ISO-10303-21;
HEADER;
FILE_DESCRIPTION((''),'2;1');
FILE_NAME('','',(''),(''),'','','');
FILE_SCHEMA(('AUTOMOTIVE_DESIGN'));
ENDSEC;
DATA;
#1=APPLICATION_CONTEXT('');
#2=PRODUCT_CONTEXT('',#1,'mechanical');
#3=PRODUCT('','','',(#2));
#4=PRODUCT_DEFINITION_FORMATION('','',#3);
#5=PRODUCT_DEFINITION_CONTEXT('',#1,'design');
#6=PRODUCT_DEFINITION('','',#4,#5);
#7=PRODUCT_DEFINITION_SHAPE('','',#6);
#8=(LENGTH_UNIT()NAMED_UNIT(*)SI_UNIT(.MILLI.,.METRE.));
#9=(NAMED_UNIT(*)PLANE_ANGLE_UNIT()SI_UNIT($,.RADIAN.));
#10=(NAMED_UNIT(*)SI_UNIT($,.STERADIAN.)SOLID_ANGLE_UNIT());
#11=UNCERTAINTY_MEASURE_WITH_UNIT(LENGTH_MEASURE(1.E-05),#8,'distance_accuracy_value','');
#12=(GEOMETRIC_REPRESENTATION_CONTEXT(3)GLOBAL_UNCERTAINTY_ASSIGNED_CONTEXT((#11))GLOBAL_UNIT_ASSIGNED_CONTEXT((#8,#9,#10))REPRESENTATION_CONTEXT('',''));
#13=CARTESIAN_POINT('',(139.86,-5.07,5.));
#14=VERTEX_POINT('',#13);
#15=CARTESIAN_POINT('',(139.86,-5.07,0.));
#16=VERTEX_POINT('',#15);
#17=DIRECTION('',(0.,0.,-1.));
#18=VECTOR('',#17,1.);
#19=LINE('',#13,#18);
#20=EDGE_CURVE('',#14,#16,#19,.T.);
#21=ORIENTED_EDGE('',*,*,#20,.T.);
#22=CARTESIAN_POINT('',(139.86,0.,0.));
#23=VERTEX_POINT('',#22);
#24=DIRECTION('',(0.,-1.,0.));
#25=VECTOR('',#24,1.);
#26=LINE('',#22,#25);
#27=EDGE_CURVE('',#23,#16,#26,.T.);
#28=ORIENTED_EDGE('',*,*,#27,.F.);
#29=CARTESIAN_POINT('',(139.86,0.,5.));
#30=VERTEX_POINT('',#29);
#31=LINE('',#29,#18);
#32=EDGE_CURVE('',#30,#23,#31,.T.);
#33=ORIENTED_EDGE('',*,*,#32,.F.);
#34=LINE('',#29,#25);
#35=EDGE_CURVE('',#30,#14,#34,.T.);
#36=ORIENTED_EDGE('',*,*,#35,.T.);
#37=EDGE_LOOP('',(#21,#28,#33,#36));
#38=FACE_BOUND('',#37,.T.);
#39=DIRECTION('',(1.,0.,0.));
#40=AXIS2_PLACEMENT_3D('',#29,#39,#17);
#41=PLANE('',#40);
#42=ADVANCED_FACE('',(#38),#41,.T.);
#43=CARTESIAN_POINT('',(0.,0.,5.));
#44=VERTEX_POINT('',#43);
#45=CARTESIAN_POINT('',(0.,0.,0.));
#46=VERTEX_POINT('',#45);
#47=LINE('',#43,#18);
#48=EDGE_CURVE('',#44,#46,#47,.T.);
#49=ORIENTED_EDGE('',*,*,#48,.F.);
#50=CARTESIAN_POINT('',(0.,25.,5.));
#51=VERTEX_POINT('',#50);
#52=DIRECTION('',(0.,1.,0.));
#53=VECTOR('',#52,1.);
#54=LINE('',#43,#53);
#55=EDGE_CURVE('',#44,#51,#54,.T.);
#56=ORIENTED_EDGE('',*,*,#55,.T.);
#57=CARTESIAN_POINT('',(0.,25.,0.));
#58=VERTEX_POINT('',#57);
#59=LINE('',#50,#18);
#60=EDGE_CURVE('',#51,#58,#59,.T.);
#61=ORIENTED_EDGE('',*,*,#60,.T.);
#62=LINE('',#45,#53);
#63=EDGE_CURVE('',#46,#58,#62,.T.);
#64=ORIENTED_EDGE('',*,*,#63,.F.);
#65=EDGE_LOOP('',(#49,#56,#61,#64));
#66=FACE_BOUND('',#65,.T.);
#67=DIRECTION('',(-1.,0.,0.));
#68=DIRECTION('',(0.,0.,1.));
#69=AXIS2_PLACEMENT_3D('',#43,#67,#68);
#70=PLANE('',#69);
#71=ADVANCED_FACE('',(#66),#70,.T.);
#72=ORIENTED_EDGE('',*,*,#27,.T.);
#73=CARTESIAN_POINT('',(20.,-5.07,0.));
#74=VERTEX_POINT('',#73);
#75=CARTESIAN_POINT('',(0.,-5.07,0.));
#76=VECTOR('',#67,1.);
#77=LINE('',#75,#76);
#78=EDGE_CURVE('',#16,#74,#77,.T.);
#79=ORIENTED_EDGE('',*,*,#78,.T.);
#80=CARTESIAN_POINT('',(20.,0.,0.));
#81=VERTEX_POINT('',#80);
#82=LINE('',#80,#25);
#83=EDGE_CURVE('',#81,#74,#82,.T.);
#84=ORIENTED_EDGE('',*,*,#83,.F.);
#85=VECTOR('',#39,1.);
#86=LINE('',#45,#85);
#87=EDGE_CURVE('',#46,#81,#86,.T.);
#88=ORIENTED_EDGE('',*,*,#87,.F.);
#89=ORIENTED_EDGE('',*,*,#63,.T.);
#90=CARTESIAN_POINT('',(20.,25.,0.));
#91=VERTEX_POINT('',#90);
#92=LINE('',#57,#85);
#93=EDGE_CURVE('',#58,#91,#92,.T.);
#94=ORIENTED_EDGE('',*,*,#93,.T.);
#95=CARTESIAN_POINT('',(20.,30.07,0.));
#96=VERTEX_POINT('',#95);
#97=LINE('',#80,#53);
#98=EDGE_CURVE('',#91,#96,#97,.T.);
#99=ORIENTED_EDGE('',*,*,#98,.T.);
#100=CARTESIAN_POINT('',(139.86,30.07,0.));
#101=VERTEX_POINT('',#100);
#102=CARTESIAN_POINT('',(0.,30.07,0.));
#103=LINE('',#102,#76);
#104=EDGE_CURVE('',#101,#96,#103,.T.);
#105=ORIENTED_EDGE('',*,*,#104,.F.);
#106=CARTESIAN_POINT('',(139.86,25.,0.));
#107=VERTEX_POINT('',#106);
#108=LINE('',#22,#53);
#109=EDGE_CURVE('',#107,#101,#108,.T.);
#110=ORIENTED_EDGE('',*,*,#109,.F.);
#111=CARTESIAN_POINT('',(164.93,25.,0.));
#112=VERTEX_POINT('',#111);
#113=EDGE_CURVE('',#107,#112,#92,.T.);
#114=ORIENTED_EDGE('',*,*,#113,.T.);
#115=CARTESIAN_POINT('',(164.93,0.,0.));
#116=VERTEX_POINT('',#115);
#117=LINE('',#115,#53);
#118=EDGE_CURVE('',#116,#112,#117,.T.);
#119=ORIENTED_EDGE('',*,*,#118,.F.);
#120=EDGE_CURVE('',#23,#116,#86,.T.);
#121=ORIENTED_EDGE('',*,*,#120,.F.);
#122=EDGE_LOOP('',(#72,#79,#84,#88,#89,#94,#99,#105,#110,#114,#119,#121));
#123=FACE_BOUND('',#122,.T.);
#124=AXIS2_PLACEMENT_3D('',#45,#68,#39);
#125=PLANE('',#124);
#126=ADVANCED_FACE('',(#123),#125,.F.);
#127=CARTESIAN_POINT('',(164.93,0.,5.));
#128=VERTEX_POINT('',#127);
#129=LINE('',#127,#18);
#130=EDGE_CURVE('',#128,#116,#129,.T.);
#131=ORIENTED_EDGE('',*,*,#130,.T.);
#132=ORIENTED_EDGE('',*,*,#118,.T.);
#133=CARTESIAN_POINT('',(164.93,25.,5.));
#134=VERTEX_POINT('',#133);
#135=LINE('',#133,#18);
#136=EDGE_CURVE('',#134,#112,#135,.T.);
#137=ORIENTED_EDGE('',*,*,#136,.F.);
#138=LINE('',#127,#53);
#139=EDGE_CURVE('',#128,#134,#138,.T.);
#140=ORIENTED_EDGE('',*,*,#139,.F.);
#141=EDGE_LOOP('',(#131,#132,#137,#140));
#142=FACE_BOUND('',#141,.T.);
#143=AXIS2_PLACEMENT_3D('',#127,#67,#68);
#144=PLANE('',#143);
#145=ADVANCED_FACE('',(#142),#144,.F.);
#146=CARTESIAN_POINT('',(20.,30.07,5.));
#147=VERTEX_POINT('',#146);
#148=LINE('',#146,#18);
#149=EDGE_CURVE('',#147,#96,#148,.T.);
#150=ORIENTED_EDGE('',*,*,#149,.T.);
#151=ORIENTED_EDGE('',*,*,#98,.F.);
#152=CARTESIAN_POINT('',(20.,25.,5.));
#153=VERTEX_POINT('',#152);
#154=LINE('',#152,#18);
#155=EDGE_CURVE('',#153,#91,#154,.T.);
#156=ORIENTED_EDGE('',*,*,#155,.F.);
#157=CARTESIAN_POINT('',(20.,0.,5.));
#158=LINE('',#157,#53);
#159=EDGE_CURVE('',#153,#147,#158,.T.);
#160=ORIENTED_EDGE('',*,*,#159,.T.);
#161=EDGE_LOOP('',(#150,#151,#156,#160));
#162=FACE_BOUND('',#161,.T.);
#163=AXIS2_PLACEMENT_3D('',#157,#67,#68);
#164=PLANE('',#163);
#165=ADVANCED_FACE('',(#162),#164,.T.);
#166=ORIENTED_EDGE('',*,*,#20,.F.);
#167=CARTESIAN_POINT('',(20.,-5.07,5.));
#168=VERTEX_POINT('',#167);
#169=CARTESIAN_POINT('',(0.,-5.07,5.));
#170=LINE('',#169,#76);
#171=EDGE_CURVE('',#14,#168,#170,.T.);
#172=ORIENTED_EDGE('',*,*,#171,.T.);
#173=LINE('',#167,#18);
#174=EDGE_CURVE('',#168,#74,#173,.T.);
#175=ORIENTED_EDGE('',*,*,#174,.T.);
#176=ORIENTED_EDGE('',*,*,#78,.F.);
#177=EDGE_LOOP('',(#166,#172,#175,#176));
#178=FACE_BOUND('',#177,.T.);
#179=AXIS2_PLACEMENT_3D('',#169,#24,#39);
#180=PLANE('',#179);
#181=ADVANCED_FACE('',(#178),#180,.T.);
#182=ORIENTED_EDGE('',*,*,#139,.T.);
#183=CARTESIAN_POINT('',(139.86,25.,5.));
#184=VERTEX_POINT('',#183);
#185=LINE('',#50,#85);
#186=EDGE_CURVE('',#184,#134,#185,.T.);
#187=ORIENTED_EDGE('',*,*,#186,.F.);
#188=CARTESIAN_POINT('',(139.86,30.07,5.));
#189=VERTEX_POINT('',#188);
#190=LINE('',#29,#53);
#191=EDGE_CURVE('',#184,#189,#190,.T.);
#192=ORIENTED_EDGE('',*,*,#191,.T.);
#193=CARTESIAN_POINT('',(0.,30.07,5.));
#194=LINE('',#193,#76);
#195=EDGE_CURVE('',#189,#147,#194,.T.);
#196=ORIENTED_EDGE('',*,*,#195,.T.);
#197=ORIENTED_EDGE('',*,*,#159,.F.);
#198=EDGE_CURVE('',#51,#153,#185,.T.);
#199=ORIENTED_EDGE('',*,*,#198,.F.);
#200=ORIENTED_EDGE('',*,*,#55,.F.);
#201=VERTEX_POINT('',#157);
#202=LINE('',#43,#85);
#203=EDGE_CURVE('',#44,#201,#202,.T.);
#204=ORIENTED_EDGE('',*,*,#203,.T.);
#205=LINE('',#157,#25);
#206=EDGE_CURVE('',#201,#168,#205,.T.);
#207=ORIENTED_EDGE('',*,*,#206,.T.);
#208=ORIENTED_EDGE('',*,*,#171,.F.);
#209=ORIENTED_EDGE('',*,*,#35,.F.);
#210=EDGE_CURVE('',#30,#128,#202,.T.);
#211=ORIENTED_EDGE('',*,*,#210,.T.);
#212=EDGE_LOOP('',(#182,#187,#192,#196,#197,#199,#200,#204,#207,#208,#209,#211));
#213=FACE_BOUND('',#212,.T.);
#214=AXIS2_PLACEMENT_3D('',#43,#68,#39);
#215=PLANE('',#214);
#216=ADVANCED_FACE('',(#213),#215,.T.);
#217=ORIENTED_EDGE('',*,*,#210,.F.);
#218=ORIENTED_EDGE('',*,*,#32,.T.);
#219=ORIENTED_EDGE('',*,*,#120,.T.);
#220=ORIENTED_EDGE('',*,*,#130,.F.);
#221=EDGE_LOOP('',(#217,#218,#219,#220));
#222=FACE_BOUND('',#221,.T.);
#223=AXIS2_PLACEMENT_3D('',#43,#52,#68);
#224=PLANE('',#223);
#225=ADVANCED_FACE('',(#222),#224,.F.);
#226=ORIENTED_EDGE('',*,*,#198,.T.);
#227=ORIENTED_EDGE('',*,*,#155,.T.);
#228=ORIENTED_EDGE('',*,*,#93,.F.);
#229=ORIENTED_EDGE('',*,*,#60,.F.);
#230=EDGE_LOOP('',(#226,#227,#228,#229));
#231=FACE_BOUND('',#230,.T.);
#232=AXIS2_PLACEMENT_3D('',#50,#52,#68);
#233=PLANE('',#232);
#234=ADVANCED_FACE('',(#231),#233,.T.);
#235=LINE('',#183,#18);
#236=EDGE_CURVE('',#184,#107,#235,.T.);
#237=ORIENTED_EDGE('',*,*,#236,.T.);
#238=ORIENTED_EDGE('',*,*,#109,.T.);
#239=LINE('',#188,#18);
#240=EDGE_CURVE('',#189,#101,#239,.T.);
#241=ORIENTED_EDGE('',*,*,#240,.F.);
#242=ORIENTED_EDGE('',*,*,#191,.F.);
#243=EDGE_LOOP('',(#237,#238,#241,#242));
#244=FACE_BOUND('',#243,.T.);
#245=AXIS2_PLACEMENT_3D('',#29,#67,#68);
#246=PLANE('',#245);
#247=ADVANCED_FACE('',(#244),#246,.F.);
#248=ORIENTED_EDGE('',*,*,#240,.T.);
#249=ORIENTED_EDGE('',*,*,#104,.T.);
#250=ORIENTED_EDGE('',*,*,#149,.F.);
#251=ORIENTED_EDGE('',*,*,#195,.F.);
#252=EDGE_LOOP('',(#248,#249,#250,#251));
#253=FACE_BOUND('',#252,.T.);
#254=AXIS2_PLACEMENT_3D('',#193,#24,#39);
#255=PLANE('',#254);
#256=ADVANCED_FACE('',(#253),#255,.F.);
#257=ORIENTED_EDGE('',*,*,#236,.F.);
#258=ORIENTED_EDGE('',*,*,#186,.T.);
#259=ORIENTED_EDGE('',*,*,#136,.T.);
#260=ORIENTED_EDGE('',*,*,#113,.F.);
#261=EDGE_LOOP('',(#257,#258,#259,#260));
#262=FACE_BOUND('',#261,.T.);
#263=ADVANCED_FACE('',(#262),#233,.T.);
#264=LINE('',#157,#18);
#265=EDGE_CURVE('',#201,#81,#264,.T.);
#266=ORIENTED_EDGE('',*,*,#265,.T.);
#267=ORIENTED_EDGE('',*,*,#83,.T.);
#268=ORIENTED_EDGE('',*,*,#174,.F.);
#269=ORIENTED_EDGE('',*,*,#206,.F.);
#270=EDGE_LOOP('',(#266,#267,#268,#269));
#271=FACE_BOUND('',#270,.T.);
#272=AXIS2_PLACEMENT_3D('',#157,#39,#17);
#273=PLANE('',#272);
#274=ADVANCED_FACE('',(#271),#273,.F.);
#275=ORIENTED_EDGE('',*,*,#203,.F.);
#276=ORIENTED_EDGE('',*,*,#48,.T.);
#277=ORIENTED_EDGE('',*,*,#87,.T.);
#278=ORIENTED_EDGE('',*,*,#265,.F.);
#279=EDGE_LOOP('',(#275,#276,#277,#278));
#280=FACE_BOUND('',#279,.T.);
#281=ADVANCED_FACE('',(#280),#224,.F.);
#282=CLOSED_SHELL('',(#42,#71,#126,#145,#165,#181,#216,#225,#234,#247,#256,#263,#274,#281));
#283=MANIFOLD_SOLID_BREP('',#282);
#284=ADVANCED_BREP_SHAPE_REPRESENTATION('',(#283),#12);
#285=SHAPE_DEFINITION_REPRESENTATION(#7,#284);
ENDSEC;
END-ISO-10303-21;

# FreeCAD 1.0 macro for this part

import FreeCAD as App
import Part
import Sketcher

V = App.Vector
Q = App.Units.Quantity

doc = App.newDocument("Part")
body = doc.addObject("PartDesign::Body", "Body")

# Sketch on XY plane
sketch1 = doc.addObject("Sketcher::SketchObject", "Sketch")
body.addObject(sketch1)
sketch1.AttachmentSupport = (doc.XY_Plane, [""])
sketch1.MapMode = "FlatFace"
sketch1.addGeometry([
    Part.LineSegment(V(0, 25, 0), V(0, 0, 0)),  # 0
    Part.LineSegment(V(0, 0, 0), V(20, 0, 0)),  # 1
    Part.LineSegment(V(20, 0, 0), V(20, -5, 0)),  # 2
    Part.LineSegment(V(20, -5, 0), V(140, -5, 0)),  # 3
    Part.LineSegment(V(140, -5, 0), V(140, 0, 0)),  # 4
    Part.LineSegment(V(140, 0, 0), V(165, 0, 0)),  # 5
    Part.LineSegment(V(165, 0, 0), V(165, 25, 0)),  # 6
    Part.LineSegment(V(165, 25, 0), V(140, 25, 0)),  # 7
    Part.LineSegment(V(140, 25, 0), V(140, 30, 0)),  # 8
    Part.LineSegment(V(140, 30, 0), V(20, 30, 0)),  # 9
    Part.LineSegment(V(20, 30, 0), V(20, 25, 0)),  # 10
    Part.LineSegment(V(20, 25, 0), V(0, 25, 0)),  # 11
], False)
sketch1.addConstraint([
    Sketcher.Constraint("Coincident", 0, 2, 1, 1),
    Sketcher.Constraint("Coincident", 1, 2, 2, 1),
    Sketcher.Constraint("Coincident", 2, 2, 3, 1),
    Sketcher.Constraint("Coincident", 3, 2, 4, 1),
    Sketcher.Constraint("Coincident", 4, 2, 5, 1),
    Sketcher.Constraint("Coincident", 5, 2, 6, 1),
    Sketcher.Constraint("Coincident", 6, 2, 7, 1),
    Sketcher.Constraint("Coincident", 7, 2, 8, 1),
    Sketcher.Constraint("Coincident", 8, 2, 9, 1),
    Sketcher.Constraint("Coincident", 9, 2, 10, 1),
    Sketcher.Constraint("Coincident", 10, 2, 11, 1),
    Sketcher.Constraint("Coincident", 11, 2, 0, 1),
    Sketcher.Constraint("Vertical", 0),
    Sketcher.Constraint("Horizontal", 1),
    Sketcher.Constraint("Vertical", 2),
    Sketcher.Constraint("Horizontal", 3),
    Sketcher.Constraint("Vertical", 4),
    Sketcher.Constraint("Horizontal", 5),
    Sketcher.Constraint("Vertical", 6),
    Sketcher.Constraint("Horizontal", 7),
    Sketcher.Constraint("Vertical", 8),
    Sketcher.Constraint("Horizontal", 9),
    Sketcher.Constraint("Vertical", 10),
    Sketcher.Constraint("Horizontal", 11),
    Sketcher.Constraint("Coincident", 0, 2, -1, 1),
    Sketcher.Constraint("PointOnObject", 4, 2, -1),
    Sketcher.Constraint("Horizontal", 7, 2, 10, 2),
    Sketcher.Constraint("Vertical", 4, 2, 7, 2),
    Sketcher.Constraint("Vertical", 2, 2, 9, 2),
    Sketcher.Constraint("Equal", 4, 8),
    Sketcher.Constraint("DistanceX", 1, 1, 1, 2, Q("20 mm")),
    Sketcher.Constraint("DistanceY", 0, 2, 0, 1, Q("25 mm")),
    Sketcher.Constraint("DistanceX", 3, 1, 3, 2, Q("119.86 mm")),
    Sketcher.Constraint("DistanceX", 5, 1, 5, 2, Q("25.07 mm")),
    Sketcher.Constraint("DistanceY", 2, 2, 2, 1, Q("5.07 mm")),
])
pad1 = doc.addObject("PartDesign::Pad", "Pad")
body.addObject(pad1)
pad1.Profile = sketch1
pad1.Length = 5

doc.recompute()
